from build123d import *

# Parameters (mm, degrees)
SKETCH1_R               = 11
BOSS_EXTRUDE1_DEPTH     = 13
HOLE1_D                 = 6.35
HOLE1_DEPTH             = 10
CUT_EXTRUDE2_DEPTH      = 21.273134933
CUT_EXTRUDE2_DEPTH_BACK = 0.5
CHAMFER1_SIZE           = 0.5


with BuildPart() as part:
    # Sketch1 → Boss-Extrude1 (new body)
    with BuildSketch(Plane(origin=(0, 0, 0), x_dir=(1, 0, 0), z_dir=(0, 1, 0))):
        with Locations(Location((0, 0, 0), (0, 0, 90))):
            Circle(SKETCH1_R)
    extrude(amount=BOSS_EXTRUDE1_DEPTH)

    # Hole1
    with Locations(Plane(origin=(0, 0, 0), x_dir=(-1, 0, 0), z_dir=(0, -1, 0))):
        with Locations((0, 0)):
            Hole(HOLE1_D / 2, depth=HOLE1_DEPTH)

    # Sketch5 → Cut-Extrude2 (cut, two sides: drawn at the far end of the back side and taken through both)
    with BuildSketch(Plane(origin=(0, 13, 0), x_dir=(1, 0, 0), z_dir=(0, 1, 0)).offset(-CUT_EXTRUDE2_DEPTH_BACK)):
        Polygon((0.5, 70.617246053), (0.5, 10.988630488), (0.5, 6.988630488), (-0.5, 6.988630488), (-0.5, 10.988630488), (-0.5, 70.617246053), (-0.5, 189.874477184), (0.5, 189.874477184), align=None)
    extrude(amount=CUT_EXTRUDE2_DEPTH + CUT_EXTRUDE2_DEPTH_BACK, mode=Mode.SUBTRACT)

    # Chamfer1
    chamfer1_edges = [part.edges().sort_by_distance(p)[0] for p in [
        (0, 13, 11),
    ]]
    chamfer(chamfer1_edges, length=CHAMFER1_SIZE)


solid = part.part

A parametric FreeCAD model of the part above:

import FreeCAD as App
import Part
import Sketcher
from FreeCAD import Vector
Q = App.Units.Quantity


def edges_at(feature, points):
    """Names of the edges that pass closest to the given points."""
    edges = feature.Shape.Edges
    near = lambda p: min(range(len(edges)), key=lambda i: edges[i].distToShape(Part.Vertex(*p))[0])
    return sorted({f"Edge{near(p) + 1}" for p in points})


def add_polygon(sketch, points):
    """Adds a closed chain of lines whose ends are joined by coincident constraints."""
    first, n = sketch.GeometryCount, len(points)
    for a, b in zip(points, points[1:] + points[:1]):
        sketch.addGeometry(Part.LineSegment(App.Vector(*a, 0), App.Vector(*b, 0)), False)
    for i in range(n):
        sketch.addConstraint(Sketcher.Constraint("Coincident", first + i, 2, first + (i + 1) % n, 1))

doc = App.newDocument("Part")
params = doc.addObject("Spreadsheet::Sheet", "Params")
for row, (alias, value) in enumerate([
    ("sketch1_diameter", "22 mm"),
    ("pad1_length", "13 mm"),
    ("sketch2_diameter", "6.35 mm"),
    ("hole_diameter", "6.35 mm"),
    ("hole_depth", "10 mm"),
    ("sketch3_width", "1 mm"),
    ("pocket1_length", "21.273135 mm"),
    ("pocket1_length2", "0.5 mm"),
    ("chamfer_size", "0.5 mm"),
], start=1):
    params.set(f"A{row}", alias)
    params.set(f"B{row}", "=" + value)
    params.setAlias(f"B{row}", alias)

body = doc.addObject("PartDesign::Body", "Body")

# Sketch on XZ plane
sketch1 = body.newObject("Sketcher::SketchObject", "Sketch")
sketch1.AttachmentSupport = (doc.getObject("XZ_Plane"), [""])
sketch1.MapMode = "FlatFace"
sketch1.addGeometry(Part.Circle(Vector(0, 0, 0), Vector(0, 0, 1), 11), False)
sketch1.addConstraint(Sketcher.Constraint("Coincident", 0, 3, -1, 1))
sketch1.addConstraint(Sketcher.Constraint("Diameter", 0, Q("22 mm")))
sketch1.setExpression("Constraints[1]", "Params.sketch1_diameter")
pad1 = body.newObject("PartDesign::Pad", "Pad")
pad1.Profile = sketch1
pad1.setExpression("Length", "Params.pad1_length")
pad1.Reversed = True

# Sketch on XZ plane
sketch2 = body.newObject("Sketcher::SketchObject", "Sketch001")
sketch2.AttachmentSupport = (doc.getObject("XZ_Plane"), [""])
sketch2.MapMode = "FlatFace"
sketch2.addGeometry(Part.Circle(Vector(0, 0, 0), Vector(0, 0, 1), 3.175), False)
sketch2.addConstraint(Sketcher.Constraint("Coincident", 0, 3, -1, 1))
sketch2.addConstraint(Sketcher.Constraint("Diameter", 0, Q("6.35 mm")))
sketch2.setExpression("Constraints[1]", "Params.sketch2_diameter")
doc.recompute()
hole = body.newObject("PartDesign::Hole", "Hole")
hole.Profile = sketch2
hole.ThreadType = "None"
hole.setExpression("Diameter", "Params.hole_diameter")
hole.DepthType = "Dimension"
hole.setExpression("Depth", "Params.hole_depth")
hole.DrillPoint = "Flat"

# Sketch on XZ plane
sketch3 = body.newObject("Sketcher::SketchObject", "Sketch002")
sketch3.AttachmentSupport = (doc.getObject("XZ_Plane"), [""])
sketch3.MapMode = "FlatFace"
sketch3.AttachmentOffset = App.Placement(Vector(0, 0, -13), App.Rotation())
add_polygon(sketch3, [(0.5, -6.98863), (0.5, -189.874477), (-0.5, -189.874477), (-0.5, -6.98863)])  # lines 0-3
sketch3.addConstraint(Sketcher.Constraint("Vertical", 0))
sketch3.addConstraint(Sketcher.Constraint("Horizontal", 1))
sketch3.addConstraint(Sketcher.Constraint("Vertical", 2))
sketch3.addConstraint(Sketcher.Constraint("Horizontal", 3))
sketch3.addConstraint(Sketcher.Constraint("DistanceX", 1, 2, 1, 1, Q("1 mm")))
sketch3.addConstraint(Sketcher.Constraint("DistanceX", -1, 1, 0, 2, Q("0.5 mm")))
sketch3.addConstraint(Sketcher.Constraint("DistanceY", 0, 2, 0, 1, Q("182.885847 mm")))
sketch3.addConstraint(Sketcher.Constraint("DistanceY", 2, 2, -1, 1, Q("6.98863 mm")))
sketch3.setExpression("Constraints[8]", "Params.sketch3_width")
pocket1 = body.newObject("PartDesign::Pocket", "Pocket")
pocket1.Profile = sketch3
pocket1.Type = "TwoLengths"
pocket1.setExpression("Length", "Params.pocket1_length")
pocket1.setExpression("Length2", "Params.pocket1_length2")
doc.recompute()

chamfer = body.newObject("PartDesign::Chamfer", "Chamfer")
chamfer.Base = (pocket1, edges_at(pocket1, [(0, 13, 11)]))
chamfer.setExpression("Size", "Params.chamfer_size")

doc.recompute()
